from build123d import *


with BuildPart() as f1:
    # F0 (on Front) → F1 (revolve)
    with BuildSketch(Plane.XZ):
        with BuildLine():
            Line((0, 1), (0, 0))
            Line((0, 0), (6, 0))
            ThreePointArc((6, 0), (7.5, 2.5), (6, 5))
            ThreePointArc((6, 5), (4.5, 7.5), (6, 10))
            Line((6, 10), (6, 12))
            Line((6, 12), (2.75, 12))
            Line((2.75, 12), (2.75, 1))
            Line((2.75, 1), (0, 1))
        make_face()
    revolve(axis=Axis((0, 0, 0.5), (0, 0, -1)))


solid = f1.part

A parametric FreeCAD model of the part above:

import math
import FreeCAD as App
import Part
import Sketcher
Q = App.Units.Quantity

doc = App.newDocument("Part")
params = doc.addObject("Spreadsheet::Sheet", "Params")
for row, (alias, value) in enumerate([
    ("sketch1_width", "6 mm"),
    ("sketch1_height", "1 mm"),
    ("sketch1_height2", "2 mm"),
    ("sketch1_height3", "11 mm"),
    ("sketch1_width2", "3.25 mm"),
    ("revolution_angle", "360 deg"),
], start=1):
    params.set(f"A{row}", alias)
    params.set(f"B{row}", "=" + value)
    params.setAlias(f"B{row}", alias)

body = doc.addObject("PartDesign::Body", "Body")

sketch1 = body.newObject("Sketcher::SketchObject", "Sketch")
sketch1.AttachmentSupport = (doc.getObject("XZ_Plane"), [""])
sketch1.MapMode = "FlatFace"
sketch1.addGeometry([
    Part.LineSegment(App.Vector(0, 1, 0), App.Vector(0, 0, 0)),
    Part.LineSegment(App.Vector(0, 0, 0), App.Vector(6, 0, 0)),
    Part.ArcOfCircle(Part.Circle(App.Vector(4.7, 2.5, 0), App.Vector(0, 0, 1), 2.8), math.radians(-62), math.radians(62)),
    Part.ArcOfCircle(Part.Circle(App.Vector(7.3, 7.5, 0), App.Vector(0, 0, 1), 2.8), math.radians(118), math.radians(242)),
    Part.LineSegment(App.Vector(6, 10, 0), App.Vector(6, 12, 0)),
    Part.LineSegment(App.Vector(6, 12, 0), App.Vector(2.8, 12, 0)),
    Part.LineSegment(App.Vector(2.8, 12, 0), App.Vector(2.8, 1, 0)),
    Part.LineSegment(App.Vector(2.8, 1, 0), App.Vector(0, 1, 0)),
], False)
sketch1.addConstraint([
    Sketcher.Constraint("Coincident", 0, 2, 1, 1),
    Sketcher.Constraint("Coincident", 1, 2, 2, 1),
    Sketcher.Constraint("Tangent", 2, 2, 3, 2),
    Sketcher.Constraint("Coincident", 3, 1, 4, 1),
    Sketcher.Constraint("Coincident", 4, 2, 5, 1),
    Sketcher.Constraint("Coincident", 5, 2, 6, 1),
    Sketcher.Constraint("Coincident", 6, 2, 7, 1),
    Sketcher.Constraint("Coincident", 7, 2, 0, 1),
    Sketcher.Constraint("Vertical", 0),
    Sketcher.Constraint("Horizontal", 1),
    Sketcher.Constraint("Vertical", 4),
    Sketcher.Constraint("Horizontal", 5),
    Sketcher.Constraint("Vertical", 6),
    Sketcher.Constraint("Horizontal", 7),
    Sketcher.Constraint("Coincident", 0, 2, -1, 1),
    Sketcher.Constraint("Equal", 2, 3),
    Sketcher.Constraint("Vertical", 1, 2, 2, 2),
    Sketcher.Constraint("Vertical", 2, 2, 3, 1),
    Sketcher.Constraint("DistanceX", 1, 1, 1, 2, Q("6 mm")),
    Sketcher.Constraint("DistanceY", 0, 2, 0, 1, Q("1 mm")),
    Sketcher.Constraint("DistanceY", 4, 1, 4, 2, Q("2 mm")),
    Sketcher.Constraint("DistanceY", 6, 2, 6, 1, Q("11 mm")),
    Sketcher.Constraint("DistanceX", 5, 2, 5, 1, Q("3.25 mm")),
    Sketcher.Constraint("Radius", 2, Q("2.833333 mm")),
])
sketch1.setExpression("Constraints[18]", "Params.sketch1_width")
sketch1.setExpression("Constraints[19]", "Params.sketch1_height")
sketch1.setExpression("Constraints[20]", "Params.sketch1_height2")
sketch1.setExpression("Constraints[21]", "Params.sketch1_height3")
sketch1.setExpression("Constraints[22]", "Params.sketch1_width2")
revolution = body.newObject("PartDesign::Revolution", "Revolution")
revolution.Profile = sketch1
revolution.ReferenceAxis = (sketch1, ["V_Axis"])
revolution.setExpression("Angle", "Params.revolution_angle")

doc.recompute()
